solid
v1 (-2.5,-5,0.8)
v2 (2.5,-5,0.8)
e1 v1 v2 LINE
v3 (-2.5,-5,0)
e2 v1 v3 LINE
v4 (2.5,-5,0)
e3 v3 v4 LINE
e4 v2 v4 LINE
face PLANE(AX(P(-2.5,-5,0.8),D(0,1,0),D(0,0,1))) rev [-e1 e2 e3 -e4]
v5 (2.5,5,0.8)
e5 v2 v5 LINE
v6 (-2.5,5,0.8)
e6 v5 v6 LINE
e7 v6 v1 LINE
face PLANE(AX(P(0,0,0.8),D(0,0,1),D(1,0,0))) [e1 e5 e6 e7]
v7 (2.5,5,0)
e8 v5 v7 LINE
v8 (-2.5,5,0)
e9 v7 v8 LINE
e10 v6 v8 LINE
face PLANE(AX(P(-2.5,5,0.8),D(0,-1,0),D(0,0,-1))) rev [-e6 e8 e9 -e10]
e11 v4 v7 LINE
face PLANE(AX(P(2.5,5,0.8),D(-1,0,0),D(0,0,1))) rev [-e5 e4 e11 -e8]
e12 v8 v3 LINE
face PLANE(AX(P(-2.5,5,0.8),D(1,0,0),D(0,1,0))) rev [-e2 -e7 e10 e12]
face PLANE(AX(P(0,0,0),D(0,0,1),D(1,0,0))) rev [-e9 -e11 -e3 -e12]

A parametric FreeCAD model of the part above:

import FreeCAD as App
import Part
import Sketcher
Q = App.Units.Quantity

doc = App.newDocument("Part")
params = doc.addObject("Spreadsheet::Sheet", "Params")
for row, (alias, value) in enumerate([
    ("sketch1_width", "5 mm"),
    ("sketch1_height", "10 mm"),
    ("pad1_length", "0.8 mm"),
], start=1):
    params.set(f"A{row}", alias)
    params.set(f"B{row}", "=" + value)
    params.setAlias(f"B{row}", alias)

body = doc.addObject("PartDesign::Body", "Body")

# Sketch on XY plane
sketch1 = body.newObject("Sketcher::SketchObject", "Sketch")
sketch1.AttachmentSupport = (doc.getObject("XY_Plane"), [""])
sketch1.MapMode = "FlatFace"
sketch1.addGeometry([
    Part.LineSegment(App.Vector(-2.5, 5, 0), App.Vector(-2.5, -5, 0)),
    Part.LineSegment(App.Vector(-2.5, -5, 0), App.Vector(2.5, -5, 0)),
    Part.LineSegment(App.Vector(2.5, -5, 0), App.Vector(2.5, 5, 0)),
    Part.LineSegment(App.Vector(2.5, 5, 0), App.Vector(-2.5, 5, 0)),
], False)
sketch1.addConstraint([
    Sketcher.Constraint("Coincident", 0, 2, 1, 1),
    Sketcher.Constraint("Coincident", 1, 2, 2, 1),
    Sketcher.Constraint("Coincident", 2, 2, 3, 1),
    Sketcher.Constraint("Coincident", 3, 2, 0, 1),
    Sketcher.Constraint("Vertical", 0),
    Sketcher.Constraint("Horizontal", 1),
    Sketcher.Constraint("Vertical", 2),
    Sketcher.Constraint("Horizontal", 3),
    Sketcher.Constraint("Symmetric", 0, 2, 2, 2, -1, 1),
    Sketcher.Constraint("DistanceX", 1, 1, 1, 2, Q("5 mm")),
    Sketcher.Constraint("DistanceY", 0, 2, 0, 1, Q("10 mm")),
])
sketch1.setExpression("Constraints[9]", "Params.sketch1_width")
sketch1.setExpression("Constraints[10]", "Params.sketch1_height")
pad1 = body.newObject("PartDesign::Pad", "Pad")
pad1.Profile = sketch1
pad1.setExpression("Length", "Params.pad1_length")

doc.recompute()
